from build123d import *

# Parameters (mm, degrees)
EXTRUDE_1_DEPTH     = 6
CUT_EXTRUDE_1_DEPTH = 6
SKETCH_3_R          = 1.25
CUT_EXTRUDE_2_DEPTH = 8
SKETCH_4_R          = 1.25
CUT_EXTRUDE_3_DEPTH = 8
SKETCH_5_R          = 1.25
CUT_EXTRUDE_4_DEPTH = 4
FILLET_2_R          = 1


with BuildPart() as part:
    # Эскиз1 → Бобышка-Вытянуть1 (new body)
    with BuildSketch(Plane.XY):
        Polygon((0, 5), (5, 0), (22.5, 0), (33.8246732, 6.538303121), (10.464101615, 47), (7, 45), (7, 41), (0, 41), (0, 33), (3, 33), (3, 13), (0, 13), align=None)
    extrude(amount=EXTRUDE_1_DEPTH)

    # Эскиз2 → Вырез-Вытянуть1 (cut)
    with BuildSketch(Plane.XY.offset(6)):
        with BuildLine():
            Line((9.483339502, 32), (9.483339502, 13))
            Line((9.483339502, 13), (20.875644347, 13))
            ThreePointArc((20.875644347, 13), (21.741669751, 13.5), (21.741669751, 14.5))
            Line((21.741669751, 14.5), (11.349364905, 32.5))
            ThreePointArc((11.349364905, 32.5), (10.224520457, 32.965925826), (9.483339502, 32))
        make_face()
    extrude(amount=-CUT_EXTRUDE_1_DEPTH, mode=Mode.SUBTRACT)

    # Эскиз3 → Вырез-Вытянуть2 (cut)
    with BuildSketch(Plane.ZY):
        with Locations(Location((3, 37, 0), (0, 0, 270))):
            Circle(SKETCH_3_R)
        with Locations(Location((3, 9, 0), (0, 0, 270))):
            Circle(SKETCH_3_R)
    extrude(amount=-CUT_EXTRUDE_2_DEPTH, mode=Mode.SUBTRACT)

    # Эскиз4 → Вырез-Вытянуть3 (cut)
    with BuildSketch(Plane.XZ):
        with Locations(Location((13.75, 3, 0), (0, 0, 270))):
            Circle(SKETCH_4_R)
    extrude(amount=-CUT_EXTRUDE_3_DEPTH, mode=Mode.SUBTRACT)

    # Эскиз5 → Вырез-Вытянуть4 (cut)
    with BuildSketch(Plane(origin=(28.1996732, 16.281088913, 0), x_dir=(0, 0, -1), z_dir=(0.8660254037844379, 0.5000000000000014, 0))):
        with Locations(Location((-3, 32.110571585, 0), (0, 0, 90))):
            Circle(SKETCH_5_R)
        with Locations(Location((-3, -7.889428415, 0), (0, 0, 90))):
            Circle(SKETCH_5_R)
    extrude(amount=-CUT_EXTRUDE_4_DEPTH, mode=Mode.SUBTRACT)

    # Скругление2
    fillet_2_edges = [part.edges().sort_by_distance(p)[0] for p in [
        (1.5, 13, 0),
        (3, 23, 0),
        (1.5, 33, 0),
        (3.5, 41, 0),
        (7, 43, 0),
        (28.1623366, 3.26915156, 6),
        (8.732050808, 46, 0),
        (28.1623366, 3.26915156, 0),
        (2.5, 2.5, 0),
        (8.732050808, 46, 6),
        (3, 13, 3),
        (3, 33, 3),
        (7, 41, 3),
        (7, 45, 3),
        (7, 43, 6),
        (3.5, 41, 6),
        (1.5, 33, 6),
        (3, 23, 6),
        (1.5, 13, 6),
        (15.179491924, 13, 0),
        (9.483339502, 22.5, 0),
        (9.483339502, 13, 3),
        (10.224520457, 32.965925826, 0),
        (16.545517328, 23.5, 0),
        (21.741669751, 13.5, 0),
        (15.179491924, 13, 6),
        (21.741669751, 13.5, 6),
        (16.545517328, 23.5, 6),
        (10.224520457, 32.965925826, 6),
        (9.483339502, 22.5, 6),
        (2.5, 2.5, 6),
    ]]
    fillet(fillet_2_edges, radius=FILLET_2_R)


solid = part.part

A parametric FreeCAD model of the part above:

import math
import FreeCAD as App
import Part
import Sketcher
Q = App.Units.Quantity


def edges_at(feature, points):
    """Names of the edges that pass closest to the given points."""
    edges = feature.Shape.Edges
    near = lambda p: min(range(len(edges)), key=lambda i: edges[i].distToShape(Part.Vertex(*p))[0])
    return sorted({f"Edge{near(p) + 1}" for p in points})


def add_polygon(sketch, points):
    """Adds a closed chain of lines whose ends are joined by coincident constraints."""
    first, n = sketch.GeometryCount, len(points)
    for a, b in zip(points, points[1:] + points[:1]):
        sketch.addGeometry(Part.LineSegment(App.Vector(*a, 0), App.Vector(*b, 0)), False)
    for i in range(n):
        sketch.addConstraint(Sketcher.Constraint("Coincident", first + i, 2, first + (i + 1) % n, 1))

doc = App.newDocument("Part")
body = doc.addObject("PartDesign::Body", "Body")

sketch1 = body.newObject("Sketcher::SketchObject", "Sketch")
sketch1.AttachmentSupport = (doc.getObject("XY_Plane"), [""])
sketch1.MapMode = "FlatFace"
add_polygon(sketch1, [(0, 5), (5, 0), (22.5, 0), (33.824673, 6.538303), (10.464102, 47), (7, 45), (7, 41), (0, 41), (0, 33), (3, 33), (3, 13), (0, 13)])
sketch1.addConstraint([
    Sketcher.Constraint("Horizontal", 1),
    Sketcher.Constraint("Vertical", 5),
    Sketcher.Constraint("Horizontal", 6),
    Sketcher.Constraint("Vertical", 7),
    Sketcher.Constraint("Horizontal", 8),
    Sketcher.Constraint("Vertical", 9),
    Sketcher.Constraint("Horizontal", 10),
    Sketcher.Constraint("Vertical", 11),
    Sketcher.Constraint("PointOnObject", 0, 2, -1),
    Sketcher.Constraint("PointOnObject", 6, 2, -2),
    Sketcher.Constraint("PointOnObject", 10, 2, -2),
    Sketcher.Constraint("Perpendicular", 2, 3),
    Sketcher.Constraint("Perpendicular", 3, 4),
    Sketcher.Constraint("Equal", 7, 11),
    Sketcher.Constraint("DistanceX", 6, 2, 6, 1, Q("7 mm")),
    Sketcher.Constraint("DistanceX", 8, 1, 8, 2, Q("3 mm")),
    Sketcher.Constraint("DistanceY", 5, 2, 5, 1, Q("4 mm")),
    Sketcher.Constraint("DistanceY", 7, 2, 7, 1, Q("8 mm")),
    Sketcher.Constraint("DistanceY", 9, 2, 9, 1, Q("20 mm")),
    Sketcher.Constraint("Angle", 0, Q("-45 deg")),
    Sketcher.Constraint("Angle", 2, Q("30 deg")),
    Sketcher.Constraint("Distance", 4, Q("4 mm")),
    Sketcher.Constraint("DistanceX", 1, 1, 1, 2, Q("17.5 mm")),
    Sketcher.Constraint("DistanceX", -1, 1, 0, 2, Q("5 mm")),
])
pad1 = body.newObject("PartDesign::Pad", "Pad")
pad1.Profile = sketch1
pad1.Length = 6

sketch2 = body.newObject("Sketcher::SketchObject", "Sketch001")
sketch2.AttachmentSupport = (doc.getObject("XY_Plane"), [""])
sketch2.MapMode = "FlatFace"
sketch2.AttachmentOffset = App.Placement(App.Vector(0, 0, 6), App.Rotation())
sketch2.addGeometry([
    Part.LineSegment(App.Vector(9.48334, 32, 0), App.Vector(9.48334, 13, 0)),
    Part.LineSegment(App.Vector(9.48334, 13, 0), App.Vector(20.875644, 13, 0)),
    Part.ArcOfCircle(Part.Circle(App.Vector(20.875644, 14, 0), App.Vector(0, 0, 1), 1), math.radians(-90), math.radians(30)),
    Part.LineSegment(App.Vector(21.74167, 14.5, 0), App.Vector(11.349365, 32.5, 0)),
    Part.ArcOfCircle(Part.Circle(App.Vector(10.48334, 32, 0), App.Vector(0, 0, 1), 1), math.radians(30), math.radians(180)),
], False)
sketch2.addConstraint([
    Sketcher.Constraint("Coincident", 0, 2, 1, 1),
    Sketcher.Constraint("Tangent", 1, 2, 2, 1),
    Sketcher.Constraint("Tangent", 2, 2, 3, 1),
    Sketcher.Constraint("Tangent", 3, 2, 4, 1),
    Sketcher.Constraint("Tangent", 4, 2, 0, 1),
    Sketcher.Constraint("Vertical", 0),
    Sketcher.Constraint("Horizontal", 1),
    Sketcher.Constraint("Equal", 2, 4),
    Sketcher.Constraint("Radius", 2, Q("1 mm")),
    Sketcher.Constraint("DistanceY", 0, 2, 0, 1, Q("19 mm")),
    Sketcher.Constraint("Angle", 3, Q("120 deg")),
    Sketcher.Constraint("DistanceY", -1, 1, 2, 3, Q("14 mm")),
    Sketcher.Constraint("DistanceX", -1, 1, 4, 3, Q("10.48334 mm")),
])
pocket1 = body.newObject("PartDesign::Pocket", "Pocket")
pocket1.Profile = sketch2
pocket1.Length = 6

sketch3 = body.newObject("Sketcher::SketchObject", "Sketch002")
sketch3.AttachmentSupport = (doc.getObject("YZ_Plane"), [""])
sketch3.MapMode = "FlatFace"
sketch3.addGeometry([
    Part.Circle(App.Vector(37, 3, 0), App.Vector(0, 0, 1), 1.25),
    Part.Circle(App.Vector(9, 3, 0), App.Vector(0, 0, 1), 1.25),
], False)
sketch3.addConstraint([
    Sketcher.Constraint("Equal", 0, 1),
    Sketcher.Constraint("Horizontal", 0, 3, 1, 3),
    Sketcher.Constraint("Diameter", 0, Q("2.5 mm")),
    Sketcher.Constraint("DistanceX", -1, 1, 0, 3, Q("37 mm")),
    Sketcher.Constraint("DistanceY", -1, 1, 0, 3, Q("3 mm")),
    Sketcher.Constraint("DistanceX", -1, 1, 1, 3, Q("9 mm")),
])
pocket2 = body.newObject("PartDesign::Pocket", "Pocket001")
pocket2.Profile = sketch3
pocket2.Length = 8
pocket2.Reversed = True

sketch4 = body.newObject("Sketcher::SketchObject", "Sketch003")
sketch4.AttachmentSupport = (doc.getObject("XZ_Plane"), [""])
sketch4.MapMode = "FlatFace"
sketch4.addGeometry(Part.Circle(App.Vector(13.75, 3, 0), App.Vector(0, 0, 1), 1.25), False)
sketch4.addConstraint([
    Sketcher.Constraint("Diameter", 0, Q("2.5 mm")),
    Sketcher.Constraint("DistanceY", -1, 1, 0, 3, Q("3 mm")),
    Sketcher.Constraint("DistanceX", -1, 1, 0, 3, Q("13.75 mm")),
])
pocket3 = body.newObject("PartDesign::Pocket", "Pocket002")
pocket3.Profile = sketch4
pocket3.Length = 8

sketch5 = body.newObject("Sketcher::SketchObject", "Sketch004")
sketch5.Placement = App.Placement(App.Vector(28.199673, 16.281089, 0), App.Rotation(App.Vector(0, 0, -1), App.Vector(-0.5, 0.866025404, 0), App.Vector(0.866025404, 0.5, 0), "ZXY"))
sketch5.addGeometry([
    Part.Circle(App.Vector(-3, 32.110572, 0), App.Vector(0, 0, 1), 1.25),
    Part.Circle(App.Vector(-3, -7.889428, 0), App.Vector(0, 0, 1), 1.25),
], False)
sketch5.addConstraint([
    Sketcher.Constraint("Equal", 0, 1),
    Sketcher.Constraint("Vertical", 0, 3, 1, 3),
    Sketcher.Constraint("Diameter", 0, Q("2.5 mm")),
    Sketcher.Constraint("DistanceX", 0, 3, -1, 1, Q("3 mm")),
    Sketcher.Constraint("DistanceY", 1, 3, 0, 3, Q("40 mm")),
    Sketcher.Constraint("DistanceY", -1, 1, 0, 3, Q("32.110572 mm")),
])
pocket4 = body.newObject("PartDesign::Pocket", "Pocket003")
pocket4.Profile = sketch5
pocket4.Length = 4
doc.recompute()

fillet = body.newObject("PartDesign::Fillet", "Fillet")
fillet.Base = (pocket4, edges_at(pocket4, [
    (1.5, 13, 0),
    (3, 23, 0),
    (1.5, 33, 0),
    (3.5, 41, 0),
    (7, 43, 0),
    (28.162, 3.269, 6),
    (8.732, 46, 0),
    (28.162, 3.269, 0),
    (2.5, 2.5, 0),
    (8.732, 46, 6),
    (3, 13, 3),
    (3, 33, 3),
    (7, 41, 3),
    (7, 45, 3),
    (7, 43, 6),
    (3.5, 41, 6),
    (1.5, 33, 6),
    (3, 23, 6),
    (1.5, 13, 6),
    (15.179, 13, 0),
    (9.483, 22.5, 0),
    (9.483, 13, 3),
    (10.225, 32.966, 0),
    (16.546, 23.5, 0),
    (21.742, 13.5, 0),
    (15.179, 13, 6),
    (21.742, 13.5, 6),
    (16.546, 23.5, 6),
    (10.225, 32.966, 6),
    (9.483, 22.5, 6),
    (2.5, 2.5, 6),
]))
fillet.Radius = 1

doc.recompute()
